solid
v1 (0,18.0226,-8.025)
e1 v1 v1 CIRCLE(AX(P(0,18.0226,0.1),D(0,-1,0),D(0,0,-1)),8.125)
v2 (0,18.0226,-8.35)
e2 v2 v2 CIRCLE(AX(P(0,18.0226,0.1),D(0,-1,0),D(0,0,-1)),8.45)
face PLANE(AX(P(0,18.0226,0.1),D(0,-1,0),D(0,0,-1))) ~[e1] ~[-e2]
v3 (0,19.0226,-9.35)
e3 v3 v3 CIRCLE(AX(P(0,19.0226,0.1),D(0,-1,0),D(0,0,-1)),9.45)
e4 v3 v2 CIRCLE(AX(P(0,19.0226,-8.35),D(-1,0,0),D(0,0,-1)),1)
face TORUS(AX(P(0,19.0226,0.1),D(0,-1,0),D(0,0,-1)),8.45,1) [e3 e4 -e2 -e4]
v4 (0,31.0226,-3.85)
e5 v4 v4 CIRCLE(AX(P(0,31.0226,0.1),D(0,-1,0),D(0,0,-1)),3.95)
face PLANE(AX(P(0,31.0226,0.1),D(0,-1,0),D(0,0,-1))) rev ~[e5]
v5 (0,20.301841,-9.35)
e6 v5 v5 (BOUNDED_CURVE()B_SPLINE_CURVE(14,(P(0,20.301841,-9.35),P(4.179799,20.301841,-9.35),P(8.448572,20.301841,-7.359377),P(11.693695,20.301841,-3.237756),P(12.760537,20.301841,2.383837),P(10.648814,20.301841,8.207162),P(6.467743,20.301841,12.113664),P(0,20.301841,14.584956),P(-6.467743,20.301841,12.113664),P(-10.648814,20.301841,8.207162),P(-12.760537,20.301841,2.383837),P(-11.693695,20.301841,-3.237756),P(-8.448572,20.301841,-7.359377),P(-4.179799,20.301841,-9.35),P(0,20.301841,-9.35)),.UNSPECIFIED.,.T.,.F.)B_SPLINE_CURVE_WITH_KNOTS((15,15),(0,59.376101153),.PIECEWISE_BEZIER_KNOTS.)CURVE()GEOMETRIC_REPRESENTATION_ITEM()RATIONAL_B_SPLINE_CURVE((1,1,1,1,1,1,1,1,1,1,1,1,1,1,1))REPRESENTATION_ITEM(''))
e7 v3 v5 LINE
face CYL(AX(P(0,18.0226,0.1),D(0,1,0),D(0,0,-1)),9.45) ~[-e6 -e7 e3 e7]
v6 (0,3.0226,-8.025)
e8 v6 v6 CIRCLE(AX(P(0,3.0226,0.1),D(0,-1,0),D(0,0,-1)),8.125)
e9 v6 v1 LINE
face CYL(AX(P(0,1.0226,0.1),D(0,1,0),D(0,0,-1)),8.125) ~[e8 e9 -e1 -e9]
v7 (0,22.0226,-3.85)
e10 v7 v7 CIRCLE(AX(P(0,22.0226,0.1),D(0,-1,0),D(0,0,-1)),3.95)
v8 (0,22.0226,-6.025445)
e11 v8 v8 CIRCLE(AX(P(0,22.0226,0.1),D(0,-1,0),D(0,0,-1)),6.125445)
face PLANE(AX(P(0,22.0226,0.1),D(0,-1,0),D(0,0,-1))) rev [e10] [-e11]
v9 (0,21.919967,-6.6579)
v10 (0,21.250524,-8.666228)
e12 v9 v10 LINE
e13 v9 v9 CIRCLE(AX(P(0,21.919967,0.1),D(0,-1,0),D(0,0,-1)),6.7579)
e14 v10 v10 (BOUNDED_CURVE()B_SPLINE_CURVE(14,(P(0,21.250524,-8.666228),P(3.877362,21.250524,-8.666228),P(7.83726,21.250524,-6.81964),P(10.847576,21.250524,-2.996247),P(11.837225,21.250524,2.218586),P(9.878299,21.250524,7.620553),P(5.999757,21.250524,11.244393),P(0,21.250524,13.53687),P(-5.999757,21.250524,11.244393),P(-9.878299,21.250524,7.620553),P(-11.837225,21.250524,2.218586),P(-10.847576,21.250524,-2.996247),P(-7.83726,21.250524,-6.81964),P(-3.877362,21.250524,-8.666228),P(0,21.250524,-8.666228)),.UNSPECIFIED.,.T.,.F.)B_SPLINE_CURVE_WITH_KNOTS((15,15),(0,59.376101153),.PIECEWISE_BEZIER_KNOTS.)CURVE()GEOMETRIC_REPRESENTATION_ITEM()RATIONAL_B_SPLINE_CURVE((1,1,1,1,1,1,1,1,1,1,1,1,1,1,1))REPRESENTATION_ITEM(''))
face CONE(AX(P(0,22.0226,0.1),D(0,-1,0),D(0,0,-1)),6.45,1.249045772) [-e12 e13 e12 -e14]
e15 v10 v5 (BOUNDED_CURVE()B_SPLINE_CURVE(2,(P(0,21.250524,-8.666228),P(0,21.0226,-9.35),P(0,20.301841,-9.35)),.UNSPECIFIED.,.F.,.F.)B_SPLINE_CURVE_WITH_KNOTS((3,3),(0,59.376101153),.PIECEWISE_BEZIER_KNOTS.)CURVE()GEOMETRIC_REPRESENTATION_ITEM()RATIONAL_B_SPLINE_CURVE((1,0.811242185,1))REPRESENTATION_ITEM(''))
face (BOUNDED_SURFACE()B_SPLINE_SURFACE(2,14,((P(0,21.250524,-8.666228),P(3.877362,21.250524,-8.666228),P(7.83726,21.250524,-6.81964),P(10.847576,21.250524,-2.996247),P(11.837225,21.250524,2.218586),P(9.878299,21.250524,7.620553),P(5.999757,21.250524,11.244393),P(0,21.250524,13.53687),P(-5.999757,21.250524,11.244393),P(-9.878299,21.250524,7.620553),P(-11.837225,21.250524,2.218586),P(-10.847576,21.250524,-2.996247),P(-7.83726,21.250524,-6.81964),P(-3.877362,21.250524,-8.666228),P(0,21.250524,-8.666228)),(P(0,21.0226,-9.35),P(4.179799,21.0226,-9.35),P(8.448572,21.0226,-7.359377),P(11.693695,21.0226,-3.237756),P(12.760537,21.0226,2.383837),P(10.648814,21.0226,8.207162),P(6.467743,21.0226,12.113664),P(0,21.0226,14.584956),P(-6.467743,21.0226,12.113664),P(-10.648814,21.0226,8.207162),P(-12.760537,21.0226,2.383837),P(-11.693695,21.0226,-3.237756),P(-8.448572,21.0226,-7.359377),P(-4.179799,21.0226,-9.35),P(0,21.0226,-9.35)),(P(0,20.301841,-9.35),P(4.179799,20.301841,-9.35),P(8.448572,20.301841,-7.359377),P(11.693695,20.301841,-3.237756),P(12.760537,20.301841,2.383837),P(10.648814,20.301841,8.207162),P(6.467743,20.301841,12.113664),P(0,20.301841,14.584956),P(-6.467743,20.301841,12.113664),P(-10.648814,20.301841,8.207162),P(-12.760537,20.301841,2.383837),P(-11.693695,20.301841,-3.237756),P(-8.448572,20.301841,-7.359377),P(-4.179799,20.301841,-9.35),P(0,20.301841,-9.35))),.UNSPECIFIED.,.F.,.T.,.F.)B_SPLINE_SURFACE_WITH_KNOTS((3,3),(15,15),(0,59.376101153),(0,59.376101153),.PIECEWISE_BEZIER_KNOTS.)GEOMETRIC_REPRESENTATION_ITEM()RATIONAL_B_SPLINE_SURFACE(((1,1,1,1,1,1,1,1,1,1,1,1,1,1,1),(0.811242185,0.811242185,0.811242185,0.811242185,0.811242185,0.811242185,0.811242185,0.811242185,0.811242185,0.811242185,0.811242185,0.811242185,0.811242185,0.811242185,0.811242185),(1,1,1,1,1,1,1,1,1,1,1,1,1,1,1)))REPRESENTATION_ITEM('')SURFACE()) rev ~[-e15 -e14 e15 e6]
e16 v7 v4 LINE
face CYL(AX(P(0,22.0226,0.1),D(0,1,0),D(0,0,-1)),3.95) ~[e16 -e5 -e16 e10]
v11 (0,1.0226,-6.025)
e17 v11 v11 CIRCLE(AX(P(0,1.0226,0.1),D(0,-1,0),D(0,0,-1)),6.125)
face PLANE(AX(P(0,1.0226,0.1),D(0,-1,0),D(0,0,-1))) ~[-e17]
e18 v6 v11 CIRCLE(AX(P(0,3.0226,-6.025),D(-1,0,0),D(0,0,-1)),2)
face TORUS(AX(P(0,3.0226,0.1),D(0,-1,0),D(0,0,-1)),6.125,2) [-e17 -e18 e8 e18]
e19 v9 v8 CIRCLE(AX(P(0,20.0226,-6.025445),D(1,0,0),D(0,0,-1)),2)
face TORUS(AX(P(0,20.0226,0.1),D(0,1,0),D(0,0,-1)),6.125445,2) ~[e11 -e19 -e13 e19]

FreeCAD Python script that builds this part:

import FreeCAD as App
import Part
import Sketcher
from FreeCAD import Vector
Q = App.Units.Quantity


def edges_at(feature, points):
    """Names of the edges that pass closest to the given points."""
    edges = feature.Shape.Edges
    near = lambda p: min(range(len(edges)), key=lambda i: edges[i].distToShape(Part.Vertex(*p))[0])
    return sorted({f"Edge{near(p) + 1}" for p in points})


def add_polygon(sketch, points):
    """Adds a closed chain of lines whose ends are joined by coincident constraints."""
    first, n = sketch.GeometryCount, len(points)
    for a, b in zip(points, points[1:] + points[:1]):
        sketch.addGeometry(Part.LineSegment(App.Vector(*a, 0), App.Vector(*b, 0)), False)
    for i in range(n):
        sketch.addConstraint(Sketcher.Constraint("Coincident", first + i, 2, first + (i + 1) % n, 1))

doc = App.newDocument("Part")
body = doc.addObject("PartDesign::Body", "Body")

sketch1 = body.newObject("Sketcher::SketchObject", "Sketch")
sketch1.AttachmentSupport = (doc.getObject("YZ_Plane"), [""])
sketch1.MapMode = "FlatFace"
add_polygon(sketch1, [(31.0226, -3.85), (31.0226, 0.1), (1.0226, 0.1), (1.0226, -8.025), (18.0226, -8.025), (18.0226, -9.35), (21.0226, -9.35), (22.0226, -6.35), (22.0226, -3.85)])
sketch1.addGeometry(Part.LineSegment(Vector(31.0226, 0.1, 0), Vector(1.0226, 0.1, 0)), True)
sketch1.addConstraint(Sketcher.Constraint("Vertical", 0))
sketch1.addConstraint(Sketcher.Constraint("Horizontal", 1))
sketch1.addConstraint(Sketcher.Constraint("Vertical", 2))
sketch1.addConstraint(Sketcher.Constraint("Horizontal", 3))
sketch1.addConstraint(Sketcher.Constraint("Vertical", 4))
sketch1.addConstraint(Sketcher.Constraint("Horizontal", 5))
sketch1.addConstraint(Sketcher.Constraint("Vertical", 7))
sketch1.addConstraint(Sketcher.Constraint("Horizontal", 8))
sketch1.addConstraint(Sketcher.Constraint("Horizontal", 9))
sketch1.addConstraint(Sketcher.Constraint("Coincident", 9, 1, 0, 2))
sketch1.addConstraint(Sketcher.Constraint("Vertical", 2, 2, 9, 2))
sketch1.addConstraint(Sketcher.Constraint("DistanceX", 1, 2, 1, 1, Q("30 mm")))
sketch1.addConstraint(Sketcher.Constraint("DistanceX", 5, 1, 5, 2, Q("3 mm")))
sketch1.addConstraint(Sketcher.Constraint("DistanceX", 8, 1, 8, 2, Q("9 mm")))
sketch1.addConstraint(Sketcher.Constraint("DistanceY", 7, 1, 7, 2, Q("2.5 mm")))
sketch1.addConstraint(Sketcher.Constraint("DistanceX", 5, 2, 6, 2, Q("1 mm")))
sketch1.addConstraint(Sketcher.Constraint("DistanceY", 5, 2, 6, 2, Q("3 mm")))
sketch1.addConstraint(Sketcher.Constraint("DistanceY", 0, 1, 0, 2, Q("3.95 mm")))
sketch1.addConstraint(Sketcher.Constraint("DistanceY", 2, 2, 2, 1, Q("8.125 mm")))
sketch1.addConstraint(Sketcher.Constraint("DistanceY", -1, 1, 0, 2, Q("0.1 mm")))
sketch1.addConstraint(Sketcher.Constraint("DistanceX", -1, 1, 0, 2, Q("31.0226 mm")))
revolution = body.newObject("PartDesign::Revolution", "Revolution")
revolution.Profile = sketch1
revolution.ReferenceAxis = (sketch1, ["Axis0"])
revolution.Angle = 360
doc.recompute()

fillet = body.newObject("PartDesign::Fillet", "Fillet")
fillet.Base = (revolution, edges_at(revolution, [(0, 21.023, 9.55), (0, 18.023, 9.55)]))
fillet.Radius = 1
doc.recompute()

fillet2 = body.newObject("PartDesign::Fillet", "Fillet001")
fillet2.Base = (fillet, edges_at(fillet, [(0, 1.023, 8.225)]))
fillet2.Radius = 2
doc.recompute()

fillet3 = body.newObject("PartDesign::Fillet", "Fillet002")
fillet3.Base = (fillet2, edges_at(fillet2, [(0, 22.023, 6.55)]))
fillet3.Radius = 2

doc.recompute()
